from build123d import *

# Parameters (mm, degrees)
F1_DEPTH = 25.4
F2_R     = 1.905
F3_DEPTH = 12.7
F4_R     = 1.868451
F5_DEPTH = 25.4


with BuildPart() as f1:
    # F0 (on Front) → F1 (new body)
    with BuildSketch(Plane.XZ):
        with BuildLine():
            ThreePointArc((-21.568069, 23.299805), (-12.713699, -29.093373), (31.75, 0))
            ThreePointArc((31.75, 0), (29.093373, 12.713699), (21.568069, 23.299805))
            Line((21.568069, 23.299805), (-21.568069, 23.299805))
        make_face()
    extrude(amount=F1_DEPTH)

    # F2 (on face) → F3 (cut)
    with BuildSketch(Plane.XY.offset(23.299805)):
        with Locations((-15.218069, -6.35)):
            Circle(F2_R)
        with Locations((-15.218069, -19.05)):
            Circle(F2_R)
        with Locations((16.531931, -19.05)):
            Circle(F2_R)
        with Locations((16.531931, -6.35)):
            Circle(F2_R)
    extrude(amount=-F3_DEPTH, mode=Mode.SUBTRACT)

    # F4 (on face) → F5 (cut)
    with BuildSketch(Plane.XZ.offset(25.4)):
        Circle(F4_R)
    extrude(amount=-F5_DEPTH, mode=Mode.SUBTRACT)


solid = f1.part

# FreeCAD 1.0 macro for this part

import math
import FreeCAD as App
import Part
import Sketcher

V = App.Vector
Q = App.Units.Quantity

doc = App.newDocument("Part")
params = doc.addObject("Spreadsheet::Sheet", "Params")
for row, (alias, value) in enumerate([
    ("sketch1_radius", "1.25 in"),
    ("sketch1_radius2", "1.2500001 in"),
    ("pad1_length", "1 in"),
    ("sketch2_diameter", "0.15 in"),
    ("pocket1_length", "0.5 in"),
    ("pocket2_length", "1 in"),
], start=1):
    params.set(f"A{row}", alias)
    params.set(f"B{row}", "=" + value)
    params.setAlias(f"B{row}", alias)

body = doc.addObject("PartDesign::Body", "Body")

sketch1 = body.newObject("Sketcher::SketchObject", "Sketch")
sketch1.AttachmentSupport = (doc.getObject("XZ_Plane"), [""])
sketch1.MapMode = "FlatFace"
sketch1.addGeometry([
    Part.ArcOfCircle(Part.Circle(V(0, 0, 0), V(0, 0, 1), 31.75), math.radians(132.78969), math.radians(360)),
    Part.ArcOfCircle(Part.Circle(V(-0.000002, -0.000001, 0), V(0, 0, 1), 31.750002), math.radians(0.000001), math.radians(47.210309)),
    Part.LineSegment(V(21.568069, 23.299805, 0), V(-21.568069, 23.299805, 0)),
], False)
sketch1.addConstraint([
    Sketcher.Constraint("Tangent", 0, 2, 1, 1),
    Sketcher.Constraint("Coincident", 1, 2, 2, 1),
    Sketcher.Constraint("Coincident", 2, 2, 0, 1),
    Sketcher.Constraint("Horizontal", 2),
    Sketcher.Constraint("Coincident", 0, 3, -1, 1),
    Sketcher.Constraint("PointOnObject", 0, 2, -1),
    Sketcher.Constraint("Radius", 0, Q("1.25 in")),
    Sketcher.Constraint("Radius", 1, Q("1.2500001 in")),
    Sketcher.Constraint("DistanceX", 2, 2, 2, 1, 43.136138),
])
sketch1.setExpression("Constraints[6]", "Params.sketch1_radius")
sketch1.setExpression("Constraints[7]", "Params.sketch1_radius2")
pad1 = body.newObject("PartDesign::Pad", "Pad")
pad1.Profile = sketch1
pad1.setExpression("Length", "Params.pad1_length")

sketch2 = body.newObject("Sketcher::SketchObject", "Sketch001")
sketch2.AttachmentSupport = (doc.getObject("XY_Plane"), [""])
sketch2.MapMode = "FlatFace"
sketch2.AttachmentOffset = App.Placement(V(0, 0, 23.299805), App.Rotation())
sketch2.addGeometry([
    Part.Circle(V(-15.218069, -6.35, 0), V(0, 0, 1), 1.905),
    Part.Circle(V(-15.218069, -19.05, 0), V(0, 0, 1), 1.905),
    Part.Circle(V(16.531931, -19.05, 0), V(0, 0, 1), 1.905),
    Part.Circle(V(16.531931, -6.35, 0), V(0, 0, 1), 1.905),
], False)
sketch2.addConstraint([
    Sketcher.Constraint("Equal", 0, 1),
    Sketcher.Constraint("Equal", 1, 2),
    Sketcher.Constraint("Equal", 2, 3),
    Sketcher.Constraint("Horizontal", 1, 3, 2, 3),
    Sketcher.Constraint("Horizontal", 0, 3, 3, 3),
    Sketcher.Constraint("Vertical", 0, 3, 1, 3),
    Sketcher.Constraint("Vertical", 2, 3, 3, 3),
    Sketcher.Constraint("Diameter", 0, Q("0.15 in")),
    Sketcher.Constraint("DistanceY", 1, 3, 0, 3, Q("0.5 in")),
    Sketcher.Constraint("DistanceY", 0, 3, -1, 1, Q("0.25 in")),
    Sketcher.Constraint("DistanceX", 1, 3, 2, 3, Q("1.25 in")),
    Sketcher.Constraint("DistanceX", 0, 3, -1, 1, 15.218069),
])
sketch2.setExpression("Constraints[7]", "Params.sketch2_diameter")
pocket1 = body.newObject("PartDesign::Pocket", "Pocket")
pocket1.Profile = sketch2
pocket1.setExpression("Length", "Params.pocket1_length")

sketch3 = body.newObject("Sketcher::SketchObject", "Sketch002")
sketch3.AttachmentSupport = (doc.getObject("XZ_Plane"), [""])
sketch3.MapMode = "FlatFace"
sketch3.AttachmentOffset = App.Placement(V(0, 0, 1 * 25.4), App.Rotation())
sketch3.addGeometry(Part.Circle(V(0, 0, 0), V(0, 0, 1), 1.868451), False)
sketch3.addConstraint([
    Sketcher.Constraint("Coincident", 0, 3, -1, 1),
    Sketcher.Constraint("Diameter", 0, 3.736902),
])
pocket2 = body.newObject("PartDesign::Pocket", "Pocket001")
pocket2.Profile = sketch3
pocket2.setExpression("Length", "Params.pocket2_length")

doc.recompute()
